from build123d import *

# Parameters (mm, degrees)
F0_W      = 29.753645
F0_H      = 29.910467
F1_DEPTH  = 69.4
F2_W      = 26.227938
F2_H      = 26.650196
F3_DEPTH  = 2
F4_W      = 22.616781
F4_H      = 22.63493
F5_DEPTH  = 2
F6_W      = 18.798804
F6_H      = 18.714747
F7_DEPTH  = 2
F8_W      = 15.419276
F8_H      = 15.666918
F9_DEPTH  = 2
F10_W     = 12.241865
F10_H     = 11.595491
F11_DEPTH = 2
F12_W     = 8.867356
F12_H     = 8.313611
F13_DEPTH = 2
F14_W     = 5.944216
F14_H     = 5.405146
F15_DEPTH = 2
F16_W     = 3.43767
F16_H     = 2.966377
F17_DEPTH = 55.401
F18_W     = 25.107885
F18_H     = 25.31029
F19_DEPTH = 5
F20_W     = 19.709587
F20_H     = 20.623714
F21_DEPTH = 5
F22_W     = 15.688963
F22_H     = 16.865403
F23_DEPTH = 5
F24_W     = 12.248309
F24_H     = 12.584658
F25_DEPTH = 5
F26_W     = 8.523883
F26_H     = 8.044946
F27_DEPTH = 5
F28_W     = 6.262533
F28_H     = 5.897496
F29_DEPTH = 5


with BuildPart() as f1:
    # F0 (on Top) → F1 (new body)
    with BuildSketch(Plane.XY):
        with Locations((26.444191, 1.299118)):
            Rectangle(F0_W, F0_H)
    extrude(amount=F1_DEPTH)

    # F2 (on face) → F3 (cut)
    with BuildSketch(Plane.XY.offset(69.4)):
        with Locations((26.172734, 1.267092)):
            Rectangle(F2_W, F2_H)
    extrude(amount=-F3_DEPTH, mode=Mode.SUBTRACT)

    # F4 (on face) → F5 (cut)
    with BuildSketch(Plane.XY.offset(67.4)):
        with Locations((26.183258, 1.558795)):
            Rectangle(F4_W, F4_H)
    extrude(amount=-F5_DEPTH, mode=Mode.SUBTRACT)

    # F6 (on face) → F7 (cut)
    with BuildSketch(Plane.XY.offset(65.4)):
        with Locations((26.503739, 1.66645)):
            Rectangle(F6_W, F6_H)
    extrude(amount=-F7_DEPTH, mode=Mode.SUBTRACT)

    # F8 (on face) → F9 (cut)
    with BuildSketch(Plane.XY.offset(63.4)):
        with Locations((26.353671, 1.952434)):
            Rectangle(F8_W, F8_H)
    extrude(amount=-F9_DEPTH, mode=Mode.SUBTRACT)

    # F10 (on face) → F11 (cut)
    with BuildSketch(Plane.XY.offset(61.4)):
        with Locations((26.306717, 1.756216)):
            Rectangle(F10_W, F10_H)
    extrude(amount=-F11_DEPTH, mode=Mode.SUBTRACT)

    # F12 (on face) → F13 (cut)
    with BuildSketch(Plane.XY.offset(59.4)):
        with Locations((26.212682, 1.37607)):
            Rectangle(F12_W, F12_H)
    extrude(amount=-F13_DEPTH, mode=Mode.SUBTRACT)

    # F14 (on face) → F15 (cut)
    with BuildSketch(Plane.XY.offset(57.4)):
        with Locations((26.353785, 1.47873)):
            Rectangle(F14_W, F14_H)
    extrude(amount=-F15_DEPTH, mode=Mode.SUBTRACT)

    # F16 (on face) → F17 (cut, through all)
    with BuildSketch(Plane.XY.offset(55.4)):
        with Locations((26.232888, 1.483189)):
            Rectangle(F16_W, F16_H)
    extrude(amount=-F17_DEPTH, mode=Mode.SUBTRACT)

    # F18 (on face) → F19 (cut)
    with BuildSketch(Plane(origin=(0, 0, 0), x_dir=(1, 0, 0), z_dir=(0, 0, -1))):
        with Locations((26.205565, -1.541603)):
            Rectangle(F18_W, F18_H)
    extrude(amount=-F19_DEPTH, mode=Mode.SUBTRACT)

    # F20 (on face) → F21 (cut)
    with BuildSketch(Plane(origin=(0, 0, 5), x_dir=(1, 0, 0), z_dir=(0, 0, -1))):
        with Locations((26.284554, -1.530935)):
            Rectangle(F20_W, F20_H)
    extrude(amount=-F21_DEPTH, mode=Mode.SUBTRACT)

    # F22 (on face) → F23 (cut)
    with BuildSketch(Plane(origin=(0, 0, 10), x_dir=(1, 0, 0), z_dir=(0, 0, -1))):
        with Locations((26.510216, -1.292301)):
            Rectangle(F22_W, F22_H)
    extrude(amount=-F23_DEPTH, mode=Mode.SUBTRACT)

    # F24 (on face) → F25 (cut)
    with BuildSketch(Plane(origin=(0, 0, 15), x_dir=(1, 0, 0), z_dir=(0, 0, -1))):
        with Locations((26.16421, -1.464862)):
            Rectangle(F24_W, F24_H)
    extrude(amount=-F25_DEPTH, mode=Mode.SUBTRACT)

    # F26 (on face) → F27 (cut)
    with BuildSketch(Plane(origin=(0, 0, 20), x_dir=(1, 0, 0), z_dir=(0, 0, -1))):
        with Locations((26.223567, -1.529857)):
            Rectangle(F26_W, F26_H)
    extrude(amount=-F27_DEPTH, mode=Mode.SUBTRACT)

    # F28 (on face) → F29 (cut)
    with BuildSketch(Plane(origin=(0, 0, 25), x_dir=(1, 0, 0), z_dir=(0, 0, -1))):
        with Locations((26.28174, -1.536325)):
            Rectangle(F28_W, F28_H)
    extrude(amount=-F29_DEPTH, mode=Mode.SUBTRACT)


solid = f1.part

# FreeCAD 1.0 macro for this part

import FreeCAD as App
import Part
import Sketcher

V = App.Vector
Q = App.Units.Quantity

doc = App.newDocument("Part")
params = doc.addObject("Spreadsheet::Sheet", "Params")
for row, (alias, value) in enumerate([
    ("pad1_length", "69.4 mm"),
    ("pocket1_length", "2 mm"),
    ("pocket2_length", "2 mm"),
    ("pocket3_length", "2 mm"),
    ("pocket4_length", "2 mm"),
    ("pocket5_length", "2 mm"),
    ("pocket6_length", "2 mm"),
    ("pocket7_length", "2 mm"),
    ("pocket9_length", "5 mm"),
    ("pocket10_length", "5 mm"),
    ("pocket11_length", "5 mm"),
    ("pocket12_length", "5 mm"),
    ("pocket13_length", "5 mm"),
    ("pocket14_length", "5 mm"),
], start=1):
    params.set(f"A{row}", alias)
    params.set(f"B{row}", "=" + value)
    params.setAlias(f"B{row}", alias)

body = doc.addObject("PartDesign::Body", "Body")

# Sketch on XY plane
sketch1 = body.newObject("Sketcher::SketchObject", "Sketch")
sketch1.AttachmentSupport = (doc.getObject("XY_Plane"), [""])
sketch1.MapMode = "FlatFace"
sketch1.addGeometry([
    Part.LineSegment(V(12, 16, 0), V(12, -14, 0)),
    Part.LineSegment(V(12, -14, 0), V(41, -14, 0)),
    Part.LineSegment(V(41, -14, 0), V(41, 16, 0)),
    Part.LineSegment(V(41, 16, 0), V(12, 16, 0)),
], False)
sketch1.addConstraint([
    Sketcher.Constraint("Coincident", 0, 2, 1, 1),
    Sketcher.Constraint("Coincident", 1, 2, 2, 1),
    Sketcher.Constraint("Coincident", 2, 2, 3, 1),
    Sketcher.Constraint("Coincident", 3, 2, 0, 1),
    Sketcher.Constraint("Vertical", 0),
    Sketcher.Constraint("Horizontal", 1),
    Sketcher.Constraint("Vertical", 2),
    Sketcher.Constraint("Horizontal", 3),
    Sketcher.Constraint("DistanceX", 1, 1, 1, 2, Q("29.753645 mm")),
    Sketcher.Constraint("DistanceY", 0, 2, 0, 1, Q("29.910467 mm")),
    Sketcher.Constraint("DistanceX", -1, 1, 0, 2, Q("11.567369 mm")),
    Sketcher.Constraint("DistanceY", -1, 1, 2, 2, Q("16.254351 mm")),
])
pad1 = body.newObject("PartDesign::Pad", "Pad")
pad1.Profile = sketch1
pad1.setExpression("Length", "Params.pad1_length")

# Sketch on XY plane
sketch2 = body.newObject("Sketcher::SketchObject", "Sketch001")
sketch2.AttachmentSupport = (doc.getObject("XY_Plane"), [""])
sketch2.MapMode = "FlatFace"
sketch2.AttachmentOffset = App.Placement(V(0, 0, 69.4), App.Rotation())
sketch2.addGeometry([
    Part.LineSegment(V(13, 15, 0), V(13, -12, 0)),
    Part.LineSegment(V(13, -12, 0), V(39, -12, 0)),
    Part.LineSegment(V(39, -12, 0), V(39, 15, 0)),
    Part.LineSegment(V(39, 15, 0), V(13, 15, 0)),
], False)
sketch2.addConstraint([
    Sketcher.Constraint("Coincident", 0, 2, 1, 1),
    Sketcher.Constraint("Coincident", 1, 2, 2, 1),
    Sketcher.Constraint("Coincident", 2, 2, 3, 1),
    Sketcher.Constraint("Coincident", 3, 2, 0, 1),
    Sketcher.Constraint("Vertical", 0),
    Sketcher.Constraint("Horizontal", 1),
    Sketcher.Constraint("Vertical", 2),
    Sketcher.Constraint("Horizontal", 3),
    Sketcher.Constraint("DistanceX", 1, 1, 1, 2, Q("26.227938 mm")),
    Sketcher.Constraint("DistanceY", 0, 2, 0, 1, Q("26.650196 mm")),
    Sketcher.Constraint("DistanceY", -1, 1, 2, 2, Q("14.59219 mm")),
    Sketcher.Constraint("DistanceX", -1, 1, 0, 2, Q("13.058765 mm")),
])
pocket1 = body.newObject("PartDesign::Pocket", "Pocket")
pocket1.Profile = sketch2
pocket1.setExpression("Length", "Params.pocket1_length")

# Sketch on XY plane
sketch3 = body.newObject("Sketcher::SketchObject", "Sketch002")
sketch3.AttachmentSupport = (doc.getObject("XY_Plane"), [""])
sketch3.MapMode = "FlatFace"
sketch3.AttachmentOffset = App.Placement(V(0, 0, 67.4), App.Rotation())
sketch3.addGeometry([
    Part.LineSegment(V(15, 13, 0), V(15, -10, 0)),
    Part.LineSegment(V(15, -10, 0), V(37, -10, 0)),
    Part.LineSegment(V(37, -10, 0), V(37, 13, 0)),
    Part.LineSegment(V(37, 13, 0), V(15, 13, 0)),
], False)
sketch3.addConstraint([
    Sketcher.Constraint("Coincident", 0, 2, 1, 1),
    Sketcher.Constraint("Coincident", 1, 2, 2, 1),
    Sketcher.Constraint("Coincident", 2, 2, 3, 1),
    Sketcher.Constraint("Coincident", 3, 2, 0, 1),
    Sketcher.Constraint("Vertical", 0),
    Sketcher.Constraint("Horizontal", 1),
    Sketcher.Constraint("Vertical", 2),
    Sketcher.Constraint("Horizontal", 3),
    Sketcher.Constraint("DistanceX", 1, 1, 1, 2, Q("22.616781 mm")),
    Sketcher.Constraint("DistanceY", 0, 2, 0, 1, Q("22.63493 mm")),
    Sketcher.Constraint("DistanceY", 0, 2, -1, 1, Q("9.75867 mm")),
    Sketcher.Constraint("DistanceX", -1, 1, 1, 2, Q("37.491648 mm")),
])
pocket2 = body.newObject("PartDesign::Pocket", "Pocket001")
pocket2.Profile = sketch3
pocket2.setExpression("Length", "Params.pocket2_length")

# Sketch on XY plane
sketch4 = body.newObject("Sketcher::SketchObject", "Sketch003")
sketch4.AttachmentSupport = (doc.getObject("XY_Plane"), [""])
sketch4.MapMode = "FlatFace"
sketch4.AttachmentOffset = App.Placement(V(0, 0, 65.4), App.Rotation())
sketch4.addGeometry([
    Part.LineSegment(V(17, 11, 0), V(17, -8, 0)),
    Part.LineSegment(V(17, -8, 0), V(36, -8, 0)),
    Part.LineSegment(V(36, -8, 0), V(36, 11, 0)),
    Part.LineSegment(V(36, 11, 0), V(17, 11, 0)),
], False)
sketch4.addConstraint([
    Sketcher.Constraint("Coincident", 0, 2, 1, 1),
    Sketcher.Constraint("Coincident", 1, 2, 2, 1),
    Sketcher.Constraint("Coincident", 2, 2, 3, 1),
    Sketcher.Constraint("Coincident", 3, 2, 0, 1),
    Sketcher.Constraint("Vertical", 0),
    Sketcher.Constraint("Horizontal", 1),
    Sketcher.Constraint("Vertical", 2),
    Sketcher.Constraint("Horizontal", 3),
    Sketcher.Constraint("DistanceX", 1, 1, 1, 2, Q("18.798804 mm")),
    Sketcher.Constraint("DistanceY", 0, 2, 0, 1, Q("18.714747 mm")),
    Sketcher.Constraint("DistanceX", -1, 1, 1, 2, Q("35.903141 mm")),
    Sketcher.Constraint("DistanceY", 0, 2, -1, 1, Q("7.690924 mm")),
])
pocket3 = body.newObject("PartDesign::Pocket", "Pocket002")
pocket3.Profile = sketch4
pocket3.setExpression("Length", "Params.pocket3_length")

# Sketch on XY plane
sketch5 = body.newObject("Sketcher::SketchObject", "Sketch004")
sketch5.AttachmentSupport = (doc.getObject("XY_Plane"), [""])
sketch5.MapMode = "FlatFace"
sketch5.AttachmentOffset = App.Placement(V(0, 0, 63.4), App.Rotation())
sketch5.addGeometry([
    Part.LineSegment(V(19, 10, 0), V(19, -6, 0)),
    Part.LineSegment(V(19, -6, 0), V(34, -6, 0)),
    Part.LineSegment(V(34, -6, 0), V(34, 10, 0)),
    Part.LineSegment(V(34, 10, 0), V(19, 10, 0)),
], False)
sketch5.addConstraint([
    Sketcher.Constraint("Coincident", 0, 2, 1, 1),
    Sketcher.Constraint("Coincident", 1, 2, 2, 1),
    Sketcher.Constraint("Coincident", 2, 2, 3, 1),
    Sketcher.Constraint("Coincident", 3, 2, 0, 1),
    Sketcher.Constraint("Vertical", 0),
    Sketcher.Constraint("Horizontal", 1),
    Sketcher.Constraint("Vertical", 2),
    Sketcher.Constraint("Horizontal", 3),
    Sketcher.Constraint("DistanceX", 1, 1, 1, 2, Q("15.419276 mm")),
    Sketcher.Constraint("DistanceY", 0, 2, 0, 1, Q("15.666918 mm")),
    Sketcher.Constraint("DistanceX", -1, 1, 1, 2, Q("34.063309 mm")),
    Sketcher.Constraint("DistanceY", 0, 2, -1, 1, Q("5.881025 mm")),
])
pocket4 = body.newObject("PartDesign::Pocket", "Pocket003")
pocket4.Profile = sketch5
pocket4.setExpression("Length", "Params.pocket4_length")

# Sketch on XY plane
sketch6 = body.newObject("Sketcher::SketchObject", "Sketch005")
sketch6.AttachmentSupport = (doc.getObject("XY_Plane"), [""])
sketch6.MapMode = "FlatFace"
sketch6.AttachmentOffset = App.Placement(V(0, 0, 61.4), App.Rotation())
sketch6.addGeometry([
    Part.LineSegment(V(20, 8, 0), V(20, -4, 0)),
    Part.LineSegment(V(20, -4, 0), V(32, -4, 0)),
    Part.LineSegment(V(32, -4, 0), V(32, 8, 0)),
    Part.LineSegment(V(32, 8, 0), V(20, 8, 0)),
], False)
sketch6.addConstraint([
    Sketcher.Constraint("Coincident", 0, 2, 1, 1),
    Sketcher.Constraint("Coincident", 1, 2, 2, 1),
    Sketcher.Constraint("Coincident", 2, 2, 3, 1),
    Sketcher.Constraint("Coincident", 3, 2, 0, 1),
    Sketcher.Constraint("Vertical", 0),
    Sketcher.Constraint("Horizontal", 1),
    Sketcher.Constraint("Vertical", 2),
    Sketcher.Constraint("Horizontal", 3),
    Sketcher.Constraint("DistanceY", 0, 2, 0, 1, Q("11.595491 mm")),
    Sketcher.Constraint("DistanceX", 1, 1, 1, 2, Q("12.241865 mm")),
    Sketcher.Constraint("DistanceY", 0, 2, -1, 1, Q("4.04153 mm")),
    Sketcher.Constraint("DistanceX", -1, 1, 1, 2, Q("32.42765 mm")),
])
pocket5 = body.newObject("PartDesign::Pocket", "Pocket004")
pocket5.Profile = sketch6
pocket5.setExpression("Length", "Params.pocket5_length")

# Sketch on XY plane
sketch7 = body.newObject("Sketcher::SketchObject", "Sketch006")
sketch7.AttachmentSupport = (doc.getObject("XY_Plane"), [""])
sketch7.MapMode = "FlatFace"
sketch7.AttachmentOffset = App.Placement(V(0, 0, 59.4), App.Rotation())
sketch7.addGeometry([
    Part.LineSegment(V(22, 6, 0), V(22, -3, 0)),
    Part.LineSegment(V(22, -3, 0), V(31, -3, 0)),
    Part.LineSegment(V(31, -3, 0), V(31, 6, 0)),
    Part.LineSegment(V(31, 6, 0), V(22, 6, 0)),
], False)
sketch7.addConstraint([
    Sketcher.Constraint("Coincident", 0, 2, 1, 1),
    Sketcher.Constraint("Coincident", 1, 2, 2, 1),
    Sketcher.Constraint("Coincident", 2, 2, 3, 1),
    Sketcher.Constraint("Coincident", 3, 2, 0, 1),
    Sketcher.Constraint("Vertical", 0),
    Sketcher.Constraint("Horizontal", 1),
    Sketcher.Constraint("Vertical", 2),
    Sketcher.Constraint("Horizontal", 3),
    Sketcher.Constraint("DistanceY", 0, 2, 0, 1, Q("8.313611 mm")),
    Sketcher.Constraint("DistanceX", 1, 1, 1, 2, Q("8.867356 mm")),
    Sketcher.Constraint("DistanceX", -1, 1, 1, 2, Q("30.64636 mm")),
    Sketcher.Constraint("DistanceY", 0, 2, -1, 1, Q("2.780736 mm")),
])
pocket6 = body.newObject("PartDesign::Pocket", "Pocket005")
pocket6.Profile = sketch7
pocket6.setExpression("Length", "Params.pocket6_length")

# Sketch on XY plane
sketch8 = body.newObject("Sketcher::SketchObject", "Sketch007")
sketch8.AttachmentSupport = (doc.getObject("XY_Plane"), [""])
sketch8.MapMode = "FlatFace"
sketch8.AttachmentOffset = App.Placement(V(0, 0, 57.4), App.Rotation())
sketch8.addGeometry([
    Part.LineSegment(V(23, 4, 0), V(23, -1, 0)),
    Part.LineSegment(V(23, -1, 0), V(29, -1, 0)),
    Part.LineSegment(V(29, -1, 0), V(29, 4, 0)),
    Part.LineSegment(V(29, 4, 0), V(23, 4, 0)),
], False)
sketch8.addConstraint([
    Sketcher.Constraint("Coincident", 0, 2, 1, 1),
    Sketcher.Constraint("Coincident", 1, 2, 2, 1),
    Sketcher.Constraint("Coincident", 2, 2, 3, 1),
    Sketcher.Constraint("Coincident", 3, 2, 0, 1),
    Sketcher.Constraint("Vertical", 0),
    Sketcher.Constraint("Horizontal", 1),
    Sketcher.Constraint("Vertical", 2),
    Sketcher.Constraint("Horizontal", 3),
    Sketcher.Constraint("DistanceX", 1, 1, 1, 2, Q("5.944216 mm")),
    Sketcher.Constraint("DistanceY", 0, 2, 0, 1, Q("5.405146 mm")),
    Sketcher.Constraint("DistanceX", -1, 1, 0, 2, Q("23.381677 mm")),
    Sketcher.Constraint("DistanceY", 0, 2, -1, 1, Q("1.223843 mm")),
])
pocket7 = body.newObject("PartDesign::Pocket", "Pocket006")
pocket7.Profile = sketch8
pocket7.setExpression("Length", "Params.pocket7_length")

# Sketch on XY plane
sketch9 = body.newObject("Sketcher::SketchObject", "Sketch008")
sketch9.AttachmentSupport = (doc.getObject("XY_Plane"), [""])
sketch9.MapMode = "FlatFace"
sketch9.AttachmentOffset = App.Placement(V(0, 0, 55.4), App.Rotation())
sketch9.addGeometry([
    Part.LineSegment(V(24.5, 3, 0), V(24.5, 0, 0)),
    Part.LineSegment(V(24.5, 0, 0), V(28, 0, 0)),
    Part.LineSegment(V(28, 0, 0), V(28, 3, 0)),
    Part.LineSegment(V(28, 3, 0), V(24.5, 3, 0)),
], False)
sketch9.addConstraint([
    Sketcher.Constraint("Coincident", 0, 2, 1, 1),
    Sketcher.Constraint("Coincident", 1, 2, 2, 1),
    Sketcher.Constraint("Coincident", 2, 2, 3, 1),
    Sketcher.Constraint("Coincident", 3, 2, 0, 1),
    Sketcher.Constraint("Vertical", 0),
    Sketcher.Constraint("Horizontal", 1),
    Sketcher.Constraint("Vertical", 2),
    Sketcher.Constraint("Horizontal", 3),
    Sketcher.Constraint("PointOnObject", 0, 2, -1),
    Sketcher.Constraint("DistanceX", 1, 1, 1, 2, Q("3.43767 mm")),
    Sketcher.Constraint("DistanceY", 0, 2, 0, 1, Q("2.966377 mm")),
    Sketcher.Constraint("DistanceX", -1, 1, 0, 2, Q("24.514053 mm")),
])
pocket8 = body.newObject("PartDesign::Pocket", "Pocket007")
pocket8.Profile = sketch9
pocket8.Type = "ThroughAll"

# Sketch on XY plane
sketch10 = body.newObject("Sketcher::SketchObject", "Sketch009")
sketch10.AttachmentSupport = (doc.getObject("XY_Plane"), [""])
sketch10.MapMode = "FlatFace"
sketch10.addGeometry([
    Part.LineSegment(V(14, -11, 0), V(14, 14, 0)),
    Part.LineSegment(V(14, 14, 0), V(39, 14, 0)),
    Part.LineSegment(V(39, 14, 0), V(39, -11, 0)),
    Part.LineSegment(V(39, -11, 0), V(14, -11, 0)),
], False)
sketch10.addConstraint([
    Sketcher.Constraint("Coincident", 0, 2, 1, 1),
    Sketcher.Constraint("Coincident", 1, 2, 2, 1),
    Sketcher.Constraint("Coincident", 2, 2, 3, 1),
    Sketcher.Constraint("Coincident", 3, 2, 0, 1),
    Sketcher.Constraint("Vertical", 0),
    Sketcher.Constraint("Horizontal", 1),
    Sketcher.Constraint("Vertical", 2),
    Sketcher.Constraint("Horizontal", 3),
    Sketcher.Constraint("DistanceY", 0, 1, 0, 2, Q("25.31029 mm")),
    Sketcher.Constraint("DistanceX", 1, 1, 1, 2, Q("25.107885 mm")),
    Sketcher.Constraint("DistanceX", -1, 1, 0, 2, Q("13.651623 mm")),
    Sketcher.Constraint("DistanceY", -1, 1, 0, 2, Q("14.196748 mm")),
])
pocket9 = body.newObject("PartDesign::Pocket", "Pocket008")
pocket9.Profile = sketch10
pocket9.setExpression("Length", "Params.pocket9_length")
pocket9.Reversed = True

# Sketch on XY plane
sketch11 = body.newObject("Sketcher::SketchObject", "Sketch010")
sketch11.AttachmentSupport = (doc.getObject("XY_Plane"), [""])
sketch11.MapMode = "FlatFace"
sketch11.AttachmentOffset = App.Placement(V(0, 0, 5), App.Rotation())
sketch11.addGeometry([
    Part.LineSegment(V(16, -9, 0), V(16, 12, 0)),
    Part.LineSegment(V(16, 12, 0), V(36, 12, 0)),
    Part.LineSegment(V(36, 12, 0), V(36, -9, 0)),
    Part.LineSegment(V(36, -9, 0), V(16, -9, 0)),
], False)
sketch11.addConstraint([
    Sketcher.Constraint("Coincident", 0, 2, 1, 1),
    Sketcher.Constraint("Coincident", 1, 2, 2, 1),
    Sketcher.Constraint("Coincident", 2, 2, 3, 1),
    Sketcher.Constraint("Coincident", 3, 2, 0, 1),
    Sketcher.Constraint("Vertical", 0),
    Sketcher.Constraint("Horizontal", 1),
    Sketcher.Constraint("Vertical", 2),
    Sketcher.Constraint("Horizontal", 3),
    Sketcher.Constraint("DistanceX", 1, 1, 1, 2, Q("19.709587 mm")),
    Sketcher.Constraint("DistanceY", 0, 1, 0, 2, Q("20.623714 mm")),
    Sketcher.Constraint("DistanceX", -1, 1, 0, 2, Q("16.429761 mm")),
    Sketcher.Constraint("DistanceY", -1, 1, 0, 2, Q("11.842792 mm")),
])
pocket10 = body.newObject("PartDesign::Pocket", "Pocket009")
pocket10.Profile = sketch11
pocket10.setExpression("Length", "Params.pocket10_length")
pocket10.Reversed = True

# Sketch on XY plane
sketch12 = body.newObject("Sketcher::SketchObject", "Sketch011")
sketch12.AttachmentSupport = (doc.getObject("XY_Plane"), [""])
sketch12.MapMode = "FlatFace"
sketch12.AttachmentOffset = App.Placement(V(0, 0, 10), App.Rotation())
sketch12.addGeometry([
    Part.LineSegment(V(19, -7, 0), V(19, 10, 0)),
    Part.LineSegment(V(19, 10, 0), V(34, 10, 0)),
    Part.LineSegment(V(34, 10, 0), V(34, -7, 0)),
    Part.LineSegment(V(34, -7, 0), V(19, -7, 0)),
], False)
sketch12.addConstraint([
    Sketcher.Constraint("Coincident", 0, 2, 1, 1),
    Sketcher.Constraint("Coincident", 1, 2, 2, 1),
    Sketcher.Constraint("Coincident", 2, 2, 3, 1),
    Sketcher.Constraint("Coincident", 3, 2, 0, 1),
    Sketcher.Constraint("Vertical", 0),
    Sketcher.Constraint("Horizontal", 1),
    Sketcher.Constraint("Vertical", 2),
    Sketcher.Constraint("Horizontal", 3),
    Sketcher.Constraint("DistanceY", 2, 2, -1, 1, Q("7.140401 mm")),
    Sketcher.Constraint("DistanceX", 1, 1, 1, 2, Q("15.688963 mm")),
    Sketcher.Constraint("DistanceY", 0, 1, 0, 2, Q("16.865403 mm")),
    Sketcher.Constraint("DistanceX", -1, 1, 0, 2, Q("18.665734 mm")),
])
pocket11 = body.newObject("PartDesign::Pocket", "Pocket010")
pocket11.Profile = sketch12
pocket11.setExpression("Length", "Params.pocket11_length")
pocket11.Reversed = True

# Sketch on XY plane
sketch13 = body.newObject("Sketcher::SketchObject", "Sketch012")
sketch13.AttachmentSupport = (doc.getObject("XY_Plane"), [""])
sketch13.MapMode = "FlatFace"
sketch13.AttachmentOffset = App.Placement(V(0, 0, 15), App.Rotation())
sketch13.addGeometry([
    Part.LineSegment(V(20, -5, 0), V(20, 8, 0)),
    Part.LineSegment(V(20, 8, 0), V(32, 8, 0)),
    Part.LineSegment(V(32, 8, 0), V(32, -5, 0)),
    Part.LineSegment(V(32, -5, 0), V(20, -5, 0)),
], False)
sketch13.addConstraint([
    Sketcher.Constraint("Coincident", 0, 2, 1, 1),
    Sketcher.Constraint("Coincident", 1, 2, 2, 1),
    Sketcher.Constraint("Coincident", 2, 2, 3, 1),
    Sketcher.Constraint("Coincident", 3, 2, 0, 1),
    Sketcher.Constraint("Vertical", 0),
    Sketcher.Constraint("Horizontal", 1),
    Sketcher.Constraint("Vertical", 2),
    Sketcher.Constraint("Horizontal", 3),
    Sketcher.Constraint("DistanceX", 1, 1, 1, 2, Q("12.248309 mm")),
    Sketcher.Constraint("DistanceY", 0, 1, 0, 2, Q("12.584658 mm")),
    Sketcher.Constraint("DistanceY", -1, 1, 0, 2, Q("7.757191 mm")),
    Sketcher.Constraint("DistanceX", -1, 1, 0, 2, Q("20.040056 mm")),
])
pocket12 = body.newObject("PartDesign::Pocket", "Pocket011")
pocket12.Profile = sketch13
pocket12.setExpression("Length", "Params.pocket12_length")
pocket12.Reversed = True

# Sketch on XY plane
sketch14 = body.newObject("Sketcher::SketchObject", "Sketch013")
sketch14.AttachmentSupport = (doc.getObject("XY_Plane"), [""])
sketch14.MapMode = "FlatFace"
sketch14.AttachmentOffset = App.Placement(V(0, 0, 20), App.Rotation())
sketch14.addGeometry([
    Part.LineSegment(V(22, -2, 0), V(22, 6, 0)),
    Part.LineSegment(V(22, 6, 0), V(30, 6, 0)),
    Part.LineSegment(V(30, 6, 0), V(30, -2, 0)),
    Part.LineSegment(V(30, -2, 0), V(22, -2, 0)),
], False)
sketch14.addConstraint([
    Sketcher.Constraint("Coincident", 0, 2, 1, 1),
    Sketcher.Constraint("Coincident", 1, 2, 2, 1),
    Sketcher.Constraint("Coincident", 2, 2, 3, 1),
    Sketcher.Constraint("Coincident", 3, 2, 0, 1),
    Sketcher.Constraint("Vertical", 0),
    Sketcher.Constraint("Horizontal", 1),
    Sketcher.Constraint("Vertical", 2),
    Sketcher.Constraint("Horizontal", 3),
    Sketcher.Constraint("DistanceX", 1, 1, 1, 2, Q("8.523883 mm")),
    Sketcher.Constraint("DistanceY", 0, 1, 0, 2, Q("8.044946 mm")),
    Sketcher.Constraint("DistanceY", -1, 1, 0, 2, Q("5.55233 mm")),
    Sketcher.Constraint("DistanceX", -1, 1, 1, 2, Q("30.485509 mm")),
])
pocket13 = body.newObject("PartDesign::Pocket", "Pocket012")
pocket13.Profile = sketch14
pocket13.setExpression("Length", "Params.pocket13_length")
pocket13.Reversed = True

# Sketch on XY plane
sketch15 = body.newObject("Sketcher::SketchObject", "Sketch014")
sketch15.AttachmentSupport = (doc.getObject("XY_Plane"), [""])
sketch15.MapMode = "FlatFace"
sketch15.AttachmentOffset = App.Placement(V(0, 0, 25), App.Rotation())
sketch15.addGeometry([
    Part.LineSegment(V(23, -1, 0), V(23, 4, 0)),
    Part.LineSegment(V(23, 4, 0), V(29, 4, 0)),
    Part.LineSegment(V(29, 4, 0), V(29, -1, 0)),
    Part.LineSegment(V(29, -1, 0), V(23, -1, 0)),
], False)
sketch15.addConstraint([
    Sketcher.Constraint("Coincident", 0, 2, 1, 1),
    Sketcher.Constraint("Coincident", 1, 2, 2, 1),
    Sketcher.Constraint("Coincident", 2, 2, 3, 1),
    Sketcher.Constraint("Coincident", 3, 2, 0, 1),
    Sketcher.Constraint("Vertical", 0),
    Sketcher.Constraint("Horizontal", 1),
    Sketcher.Constraint("Vertical", 2),
    Sketcher.Constraint("Horizontal", 3),
    Sketcher.Constraint("DistanceX", 1, 1, 1, 2, Q("6.262533 mm")),
    Sketcher.Constraint("DistanceY", 0, 1, 0, 2, Q("5.897496 mm")),
    Sketcher.Constraint("DistanceX", -1, 1, 0, 2, Q("23.150474 mm")),
    Sketcher.Constraint("DistanceY", -1, 1, 0, 2, Q("4.485073 mm")),
])
pocket14 = body.newObject("PartDesign::Pocket", "Pocket013")
pocket14.Profile = sketch15
pocket14.setExpression("Length", "Params.pocket14_length")
pocket14.Reversed = True

doc.recompute()
